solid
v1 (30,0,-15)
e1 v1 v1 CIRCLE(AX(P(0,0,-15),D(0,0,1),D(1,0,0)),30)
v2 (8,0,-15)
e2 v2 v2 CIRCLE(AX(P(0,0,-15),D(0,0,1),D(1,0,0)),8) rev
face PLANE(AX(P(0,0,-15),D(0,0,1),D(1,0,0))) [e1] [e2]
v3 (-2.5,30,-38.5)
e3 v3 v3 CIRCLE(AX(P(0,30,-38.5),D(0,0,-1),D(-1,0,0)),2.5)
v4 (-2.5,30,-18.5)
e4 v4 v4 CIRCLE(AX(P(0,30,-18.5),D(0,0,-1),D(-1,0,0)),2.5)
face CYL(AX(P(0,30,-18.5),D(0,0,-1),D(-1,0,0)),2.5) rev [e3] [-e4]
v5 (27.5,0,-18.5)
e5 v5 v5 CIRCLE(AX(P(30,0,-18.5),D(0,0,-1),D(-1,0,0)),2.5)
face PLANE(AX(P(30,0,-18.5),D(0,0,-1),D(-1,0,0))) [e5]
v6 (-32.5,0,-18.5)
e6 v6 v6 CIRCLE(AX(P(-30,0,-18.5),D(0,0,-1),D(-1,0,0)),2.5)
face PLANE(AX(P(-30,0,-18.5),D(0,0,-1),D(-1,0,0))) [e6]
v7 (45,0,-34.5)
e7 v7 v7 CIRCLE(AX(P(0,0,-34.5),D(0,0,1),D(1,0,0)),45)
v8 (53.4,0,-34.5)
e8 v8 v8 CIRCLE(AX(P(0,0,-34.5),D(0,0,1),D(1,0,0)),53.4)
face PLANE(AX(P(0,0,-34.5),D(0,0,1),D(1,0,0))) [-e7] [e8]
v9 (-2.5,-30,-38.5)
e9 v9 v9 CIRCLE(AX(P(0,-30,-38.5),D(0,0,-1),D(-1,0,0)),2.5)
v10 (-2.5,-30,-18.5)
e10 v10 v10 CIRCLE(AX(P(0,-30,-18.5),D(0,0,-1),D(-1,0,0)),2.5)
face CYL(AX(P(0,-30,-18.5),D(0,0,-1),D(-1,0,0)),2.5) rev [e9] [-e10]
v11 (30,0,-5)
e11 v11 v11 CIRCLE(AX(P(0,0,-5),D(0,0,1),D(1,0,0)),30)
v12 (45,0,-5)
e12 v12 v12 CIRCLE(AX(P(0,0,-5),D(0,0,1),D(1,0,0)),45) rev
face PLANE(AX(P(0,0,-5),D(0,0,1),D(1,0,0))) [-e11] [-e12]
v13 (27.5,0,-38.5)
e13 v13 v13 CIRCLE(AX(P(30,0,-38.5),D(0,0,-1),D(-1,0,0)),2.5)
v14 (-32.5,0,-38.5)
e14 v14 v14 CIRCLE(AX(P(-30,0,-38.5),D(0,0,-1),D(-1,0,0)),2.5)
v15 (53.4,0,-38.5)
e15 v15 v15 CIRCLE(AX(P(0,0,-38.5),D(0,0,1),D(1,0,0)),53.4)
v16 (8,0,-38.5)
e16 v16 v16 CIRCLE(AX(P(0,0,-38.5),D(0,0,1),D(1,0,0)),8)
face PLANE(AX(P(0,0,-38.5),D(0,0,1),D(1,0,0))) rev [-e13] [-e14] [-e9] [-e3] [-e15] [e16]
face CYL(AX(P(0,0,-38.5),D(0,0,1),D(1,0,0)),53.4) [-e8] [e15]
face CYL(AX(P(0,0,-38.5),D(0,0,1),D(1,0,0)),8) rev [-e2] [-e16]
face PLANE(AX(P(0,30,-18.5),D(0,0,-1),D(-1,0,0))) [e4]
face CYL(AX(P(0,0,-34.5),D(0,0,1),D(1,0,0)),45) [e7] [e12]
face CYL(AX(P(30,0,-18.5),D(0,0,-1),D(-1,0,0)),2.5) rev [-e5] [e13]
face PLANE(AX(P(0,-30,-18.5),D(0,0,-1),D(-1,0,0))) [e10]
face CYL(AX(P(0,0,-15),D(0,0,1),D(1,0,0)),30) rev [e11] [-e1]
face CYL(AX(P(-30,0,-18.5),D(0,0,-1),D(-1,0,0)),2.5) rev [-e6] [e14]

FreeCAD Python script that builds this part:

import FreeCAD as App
import Part
import Sketcher

doc = App.newDocument("Part")
body = doc.addObject("PartDesign::Body", "Body")

# Sketch on XY plane
sketch1 = body.newObject("Sketcher::SketchObject", "Sketch")
sketch1.AttachmentSupport = (doc.getObject("XY_Plane"), [""])
sketch1.MapMode = "FlatFace"
sketch1.addGeometry(Part.Circle(App.Vector(0, 0, 0), App.Vector(0, 0, 1), 53), False)
sketch1.addConstraint([
    Sketcher.Constraint("Coincident", 0, 3, -1, 1),
    Sketcher.Constraint("Diameter", 0, 106.8),
])
pad1 = body.newObject("PartDesign::Pad", "Pad")
pad1.Profile = sketch1
pad1.Length = 38.5
pad1.Reversed = True

# Sketch on XY plane
sketch2 = body.newObject("Sketcher::SketchObject", "Sketch001")
sketch2.AttachmentSupport = (doc.getObject("XY_Plane"), [""])
sketch2.MapMode = "FlatFace"
sketch2.addGeometry(Part.Circle(App.Vector(0, 0, 0), App.Vector(0, 0, 1), 8), False)
sketch2.addConstraint([
    Sketcher.Constraint("Coincident", 0, 3, -1, 1),
    Sketcher.Constraint("Diameter", 0, 16.0),
])
pocket1 = body.newObject("PartDesign::Pocket", "Pocket")
pocket1.Profile = sketch2
pocket1.Type = "ThroughAll"

# Sketch on XY plane
sketch3 = body.newObject("Sketcher::SketchObject", "Sketch002")
sketch3.AttachmentSupport = (doc.getObject("XY_Plane"), [""])
sketch3.MapMode = "FlatFace"
sketch3.AttachmentOffset = App.Placement(App.Vector(0, 0, 2), App.Rotation())
sketch3.addGeometry([
    Part.Circle(App.Vector(0, 0, 0), App.Vector(0, 0, 1), 16),
    Part.Circle(App.Vector(0, 0, 0), App.Vector(0, 0, 1), 8),
], False)
sketch3.addConstraint([
    Sketcher.Constraint("Coincident", 0, 3, -1, 1),
    Sketcher.Constraint("Coincident", 1, 3, -1, 1),
    Sketcher.Constraint("Diameter", 0, 32.0),
    Sketcher.Constraint("Diameter", 1, 16.0),
])
pad2 = body.newObject("PartDesign::Pad", "Pad001")
pad2.Profile = sketch3
pad2.Length = 2
pad2.Reversed = True

# Sketch on XY plane
sketch4 = body.newObject("Sketcher::SketchObject", "Sketch003")
sketch4.AttachmentSupport = (doc.getObject("XY_Plane"), [""])
sketch4.MapMode = "FlatFace"
sketch4.AttachmentOffset = App.Placement(App.Vector(0, 0, -38.5), App.Rotation())
sketch4.addGeometry([
    Part.Circle(App.Vector(0, 30, 0), App.Vector(0, 0, 1), 2.5),
    Part.Circle(App.Vector(-30, 0, 0), App.Vector(0, 0, 1), 2.5),
    Part.Circle(App.Vector(0, -30, 0), App.Vector(0, 0, 1), 2.5),
    Part.Circle(App.Vector(30, 0, 0), App.Vector(0, 0, 1), 2.5),
], False)
sketch4.addConstraint([
    Sketcher.Constraint("Equal", 0, 1),
    Sketcher.Constraint("Equal", 1, 2),
    Sketcher.Constraint("Equal", 2, 3),
    Sketcher.Constraint("Symmetric", 0, 3, 2, 3, -1, 1),
    Sketcher.Constraint("Symmetric", 1, 3, 3, 3, -1, 1),
    Sketcher.Constraint("PointOnObject", 0, 3, -2),
    Sketcher.Constraint("PointOnObject", 1, 3, -1),
    Sketcher.Constraint("Diameter", 0, 5.0),
    Sketcher.Constraint("DistanceY", -1, 1, 0, 3, 30.0),
    Sketcher.Constraint("DistanceX", 1, 3, -1, 1, 30.0),
])
pocket2 = body.newObject("PartDesign::Pocket", "Pocket001")
pocket2.Profile = sketch4
pocket2.Length = 20
pocket2.Reversed = True

# Sketch on XY plane
sketch5 = body.newObject("Sketcher::SketchObject", "Sketch004")
sketch5.AttachmentSupport = (doc.getObject("XY_Plane"), [""])
sketch5.MapMode = "FlatFace"
sketch5.addGeometry([
    Part.Circle(App.Vector(0, 0, 0), App.Vector(0, 0, 1), 53),
    Part.Circle(App.Vector(0, 0, 0), App.Vector(0, 0, 1), 45),
], False)
sketch5.addConstraint([
    Sketcher.Constraint("Coincident", 0, 3, -1, 1),
    Sketcher.Constraint("Coincident", 1, 3, -1, 1),
    Sketcher.Constraint("Diameter", 1, 90.0),
    Sketcher.Constraint("Diameter", 0, 106.8),
])
pocket3 = body.newObject("PartDesign::Pocket", "Pocket002")
pocket3.Profile = sketch5
pocket3.Length = 34.5

# Sketch on XY plane
sketch6 = body.newObject("Sketcher::SketchObject", "Sketch005")
sketch6.AttachmentSupport = (doc.getObject("XY_Plane"), [""])
sketch6.MapMode = "FlatFace"
sketch6.addGeometry(Part.Circle(App.Vector(0, 0, 0), App.Vector(0, 0, 1), 50), False)
sketch6.addConstraint([
    Sketcher.Constraint("Coincident", 0, 3, -1, 1),
    Sketcher.Constraint("Diameter", 0, 100.0),
])
pocket4 = body.newObject("PartDesign::Pocket", "Pocket003")
pocket4.Profile = sketch6
pocket4.Type = "TwoLengths"
pocket4.Length = 2
pocket4.Length2 = 5
pocket4.Reversed = True

# Sketch on XY plane
sketch7 = body.newObject("Sketcher::SketchObject", "Sketch006")
sketch7.AttachmentSupport = (doc.getObject("XY_Plane"), [""])
sketch7.MapMode = "FlatFace"
sketch7.AttachmentOffset = App.Placement(App.Vector(0, 0, -5), App.Rotation())
sketch7.addGeometry(Part.Circle(App.Vector(0, 0, 0), App.Vector(0, 0, 1), 30), False)
sketch7.addConstraint([
    Sketcher.Constraint("Coincident", 0, 3, -1, 1),
    Sketcher.Constraint("Diameter", 0, 60.0),
])
pocket5 = body.newObject("PartDesign::Pocket", "Pocket004")
pocket5.Profile = sketch7
pocket5.Length = 10

doc.recompute()
